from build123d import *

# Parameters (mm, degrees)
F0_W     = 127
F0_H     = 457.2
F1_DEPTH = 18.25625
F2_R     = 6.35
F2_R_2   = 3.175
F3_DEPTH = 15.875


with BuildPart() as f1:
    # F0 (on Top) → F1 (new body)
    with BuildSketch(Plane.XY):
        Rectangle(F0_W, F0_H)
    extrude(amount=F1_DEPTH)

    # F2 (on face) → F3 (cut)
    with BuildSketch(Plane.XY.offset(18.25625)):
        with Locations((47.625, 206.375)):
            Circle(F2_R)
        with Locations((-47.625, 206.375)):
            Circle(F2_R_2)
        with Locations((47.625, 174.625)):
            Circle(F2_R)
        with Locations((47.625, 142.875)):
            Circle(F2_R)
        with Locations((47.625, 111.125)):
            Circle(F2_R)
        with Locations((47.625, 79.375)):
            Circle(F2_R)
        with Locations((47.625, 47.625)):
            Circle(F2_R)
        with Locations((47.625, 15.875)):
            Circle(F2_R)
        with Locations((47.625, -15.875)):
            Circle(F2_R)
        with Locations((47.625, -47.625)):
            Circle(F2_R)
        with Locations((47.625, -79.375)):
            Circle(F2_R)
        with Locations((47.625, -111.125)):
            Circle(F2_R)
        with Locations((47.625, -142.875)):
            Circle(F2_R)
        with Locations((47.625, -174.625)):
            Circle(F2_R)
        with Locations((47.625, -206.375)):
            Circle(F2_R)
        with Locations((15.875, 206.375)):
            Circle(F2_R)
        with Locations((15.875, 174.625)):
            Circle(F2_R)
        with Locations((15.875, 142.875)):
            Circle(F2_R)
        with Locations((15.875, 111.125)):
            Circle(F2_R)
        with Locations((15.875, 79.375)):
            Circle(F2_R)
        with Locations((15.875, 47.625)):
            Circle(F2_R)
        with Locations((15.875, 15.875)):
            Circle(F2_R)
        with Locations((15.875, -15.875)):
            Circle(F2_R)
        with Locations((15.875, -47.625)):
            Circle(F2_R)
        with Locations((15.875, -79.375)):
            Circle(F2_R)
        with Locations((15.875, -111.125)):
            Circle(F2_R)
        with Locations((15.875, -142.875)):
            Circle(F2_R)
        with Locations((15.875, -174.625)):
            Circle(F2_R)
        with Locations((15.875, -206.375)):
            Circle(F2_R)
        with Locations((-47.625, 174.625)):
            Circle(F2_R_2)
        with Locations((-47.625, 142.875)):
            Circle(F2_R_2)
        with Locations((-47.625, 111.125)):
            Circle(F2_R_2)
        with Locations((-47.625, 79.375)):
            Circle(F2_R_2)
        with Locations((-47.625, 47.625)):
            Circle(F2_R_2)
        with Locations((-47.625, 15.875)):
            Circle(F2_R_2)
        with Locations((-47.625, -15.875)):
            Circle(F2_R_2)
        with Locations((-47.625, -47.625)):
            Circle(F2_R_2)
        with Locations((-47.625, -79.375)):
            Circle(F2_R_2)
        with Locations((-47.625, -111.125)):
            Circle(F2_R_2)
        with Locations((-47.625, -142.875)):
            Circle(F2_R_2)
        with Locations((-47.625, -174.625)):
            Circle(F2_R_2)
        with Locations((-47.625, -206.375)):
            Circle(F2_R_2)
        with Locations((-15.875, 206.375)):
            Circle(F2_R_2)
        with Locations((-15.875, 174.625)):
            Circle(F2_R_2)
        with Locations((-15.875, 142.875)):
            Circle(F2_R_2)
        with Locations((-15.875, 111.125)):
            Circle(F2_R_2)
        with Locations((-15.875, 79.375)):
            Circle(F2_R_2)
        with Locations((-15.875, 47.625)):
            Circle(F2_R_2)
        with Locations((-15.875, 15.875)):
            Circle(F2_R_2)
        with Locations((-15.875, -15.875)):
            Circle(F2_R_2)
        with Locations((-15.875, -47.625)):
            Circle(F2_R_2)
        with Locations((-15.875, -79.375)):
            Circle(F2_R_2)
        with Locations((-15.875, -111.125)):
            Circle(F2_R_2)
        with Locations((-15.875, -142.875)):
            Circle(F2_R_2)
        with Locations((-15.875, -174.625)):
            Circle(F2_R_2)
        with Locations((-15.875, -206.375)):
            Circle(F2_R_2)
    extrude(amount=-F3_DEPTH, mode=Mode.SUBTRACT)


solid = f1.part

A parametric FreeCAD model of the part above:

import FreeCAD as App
import Part
import Sketcher
Q = App.Units.Quantity

doc = App.newDocument("Part")
body = doc.addObject("PartDesign::Body", "Body")

# Sketch on XY plane
sketch1 = body.newObject("Sketcher::SketchObject", "Sketch")
sketch1.AttachmentSupport = (doc.getObject("XY_Plane"), [""])
sketch1.MapMode = "FlatFace"
sketch1.addGeometry([
    Part.LineSegment(App.Vector(-63.5, 228.6, 0), App.Vector(-63.5, -228.6, 0)),
    Part.LineSegment(App.Vector(-63.5, -228.6, 0), App.Vector(63.5, -228.6, 0)),
    Part.LineSegment(App.Vector(63.5, -228.6, 0), App.Vector(63.5, 228.6, 0)),
    Part.LineSegment(App.Vector(63.5, 228.6, 0), App.Vector(-63.5, 228.6, 0)),
], False)
sketch1.addConstraint([
    Sketcher.Constraint("Coincident", 0, 2, 1, 1),
    Sketcher.Constraint("Coincident", 1, 2, 2, 1),
    Sketcher.Constraint("Coincident", 2, 2, 3, 1),
    Sketcher.Constraint("Coincident", 3, 2, 0, 1),
    Sketcher.Constraint("Vertical", 0),
    Sketcher.Constraint("Horizontal", 1),
    Sketcher.Constraint("Vertical", 2),
    Sketcher.Constraint("Horizontal", 3),
    Sketcher.Constraint("Symmetric", 0, 2, 2, 2, -1, 1),
    Sketcher.Constraint("DistanceX", 1, 1, 1, 2, Q("5 in")),
    Sketcher.Constraint("DistanceY", 0, 2, 0, 1, Q("18 in")),
])
pad1 = body.newObject("PartDesign::Pad", "Pad")
pad1.Profile = sketch1
pad1.Length = Q("0.71875 in")

# Sketch on XY plane
sketch2 = body.newObject("Sketcher::SketchObject", "Sketch001")
sketch2.AttachmentSupport = (doc.getObject("XY_Plane"), [""])
sketch2.MapMode = "FlatFace"
sketch2.AttachmentOffset = App.Placement(App.Vector(0, 0, 0.71875 * 25.4), App.Rotation())
sketch2.addGeometry([
    Part.Circle(App.Vector(47.625, 206.375, 0), App.Vector(0, 0, 1), 6.35),  # 0
    Part.Circle(App.Vector(-47.625, 206.375, 0), App.Vector(0, 0, 1), 3.175),  # 1
    Part.Circle(App.Vector(47.625, 174.625, 0), App.Vector(0, 0, 1), 6.35),  # 2
    Part.Circle(App.Vector(47.625, 142.875, 0), App.Vector(0, 0, 1), 6.35),  # 3
    Part.Circle(App.Vector(47.625, 111.125, 0), App.Vector(0, 0, 1), 6.35),  # 4
    Part.Circle(App.Vector(47.625, 79.375, 0), App.Vector(0, 0, 1), 6.35),  # 5
    Part.Circle(App.Vector(47.625, 47.625, 0), App.Vector(0, 0, 1), 6.35),  # 6
    Part.Circle(App.Vector(47.625, 15.875, 0), App.Vector(0, 0, 1), 6.35),  # 7
    Part.Circle(App.Vector(47.625, -15.875, 0), App.Vector(0, 0, 1), 6.35),  # 8
    Part.Circle(App.Vector(47.625, -47.625, 0), App.Vector(0, 0, 1), 6.35),  # 9
    Part.Circle(App.Vector(47.625, -79.375, 0), App.Vector(0, 0, 1), 6.35),  # 10
    Part.Circle(App.Vector(47.625, -111.125, 0), App.Vector(0, 0, 1), 6.35),  # 11
    Part.Circle(App.Vector(47.625, -142.875, 0), App.Vector(0, 0, 1), 6.35),  # 12
    Part.Circle(App.Vector(47.625, -174.625, 0), App.Vector(0, 0, 1), 6.35),  # 13
    Part.Circle(App.Vector(47.625, -206.375, 0), App.Vector(0, 0, 1), 6.35),  # 14
    Part.Circle(App.Vector(15.875, 206.375, 0), App.Vector(0, 0, 1), 6.35),  # 15
    Part.Circle(App.Vector(15.875, 174.625, 0), App.Vector(0, 0, 1), 6.35),  # 16
    Part.Circle(App.Vector(15.875, 142.875, 0), App.Vector(0, 0, 1), 6.35),  # 17
    Part.Circle(App.Vector(15.875, 111.125, 0), App.Vector(0, 0, 1), 6.35),  # 18
    Part.Circle(App.Vector(15.875, 79.375, 0), App.Vector(0, 0, 1), 6.35),  # 19
    Part.Circle(App.Vector(15.875, 47.625, 0), App.Vector(0, 0, 1), 6.35),  # 20
    Part.Circle(App.Vector(15.875, 15.875, 0), App.Vector(0, 0, 1), 6.35),  # 21
    Part.Circle(App.Vector(15.875, -15.875, 0), App.Vector(0, 0, 1), 6.35),  # 22
    Part.Circle(App.Vector(15.875, -47.625, 0), App.Vector(0, 0, 1), 6.35),  # 23
    Part.Circle(App.Vector(15.875, -79.375, 0), App.Vector(0, 0, 1), 6.35),  # 24
    Part.Circle(App.Vector(15.875, -111.125, 0), App.Vector(0, 0, 1), 6.35),  # 25
    Part.Circle(App.Vector(15.875, -142.875, 0), App.Vector(0, 0, 1), 6.35),  # 26
    Part.Circle(App.Vector(15.875, -174.625, 0), App.Vector(0, 0, 1), 6.35),  # 27
    Part.Circle(App.Vector(15.875, -206.375, 0), App.Vector(0, 0, 1), 6.35),  # 28
    Part.Circle(App.Vector(-47.625, 174.625, 0), App.Vector(0, 0, 1), 3.175),  # 29
    Part.Circle(App.Vector(-47.625, 142.875, 0), App.Vector(0, 0, 1), 3.175),  # 30
    Part.Circle(App.Vector(-47.625, 111.125, 0), App.Vector(0, 0, 1), 3.175),  # 31
    Part.Circle(App.Vector(-47.625, 79.375, 0), App.Vector(0, 0, 1), 3.175),  # 32
    Part.Circle(App.Vector(-47.625, 47.625, 0), App.Vector(0, 0, 1), 3.175),  # 33
    Part.Circle(App.Vector(-47.625, 15.875, 0), App.Vector(0, 0, 1), 3.175),  # 34
    Part.Circle(App.Vector(-47.625, -15.875, 0), App.Vector(0, 0, 1), 3.175),  # 35
    Part.Circle(App.Vector(-47.625, -47.625, 0), App.Vector(0, 0, 1), 3.175),  # 36
    Part.Circle(App.Vector(-47.625, -79.375, 0), App.Vector(0, 0, 1), 3.175),  # 37
    Part.Circle(App.Vector(-47.625, -111.125, 0), App.Vector(0, 0, 1), 3.175),  # 38
    Part.Circle(App.Vector(-47.625, -142.875, 0), App.Vector(0, 0, 1), 3.175),  # 39
    Part.Circle(App.Vector(-47.625, -174.625, 0), App.Vector(0, 0, 1), 3.175),  # 40
    Part.Circle(App.Vector(-47.625, -206.375, 0), App.Vector(0, 0, 1), 3.175),  # 41
    Part.Circle(App.Vector(-15.875, 206.375, 0), App.Vector(0, 0, 1), 3.175),  # 42
    Part.Circle(App.Vector(-15.875, 174.625, 0), App.Vector(0, 0, 1), 3.175),  # 43
    Part.Circle(App.Vector(-15.875, 142.875, 0), App.Vector(0, 0, 1), 3.175),  # 44
    Part.Circle(App.Vector(-15.875, 111.125, 0), App.Vector(0, 0, 1), 3.175),  # 45
    Part.Circle(App.Vector(-15.875, 79.375, 0), App.Vector(0, 0, 1), 3.175),  # 46
    Part.Circle(App.Vector(-15.875, 47.625, 0), App.Vector(0, 0, 1), 3.175),  # 47
    Part.Circle(App.Vector(-15.875, 15.875, 0), App.Vector(0, 0, 1), 3.175),  # 48
    Part.Circle(App.Vector(-15.875, -15.875, 0), App.Vector(0, 0, 1), 3.175),  # 49
    Part.Circle(App.Vector(-15.875, -47.625, 0), App.Vector(0, 0, 1), 3.175),  # 50
    Part.Circle(App.Vector(-15.875, -79.375, 0), App.Vector(0, 0, 1), 3.175),  # 51
    Part.Circle(App.Vector(-15.875, -111.125, 0), App.Vector(0, 0, 1), 3.175),  # 52
    Part.Circle(App.Vector(-15.875, -142.875, 0), App.Vector(0, 0, 1), 3.175),  # 53
    Part.Circle(App.Vector(-15.875, -174.625, 0), App.Vector(0, 0, 1), 3.175),  # 54
    Part.Circle(App.Vector(-15.875, -206.375, 0), App.Vector(0, 0, 1), 3.175),  # 55
], False)
sketch2.addConstraint([
    Sketcher.Constraint("Equal", 0, 2),
    Sketcher.Constraint("Equal", 2, 3),
    Sketcher.Constraint("Equal", 3, 4),
    Sketcher.Constraint("Equal", 4, 5),
    Sketcher.Constraint("Equal", 5, 6),
    Sketcher.Constraint("Equal", 6, 7),
    Sketcher.Constraint("Equal", 7, 8),
    Sketcher.Constraint("Equal", 8, 9),
    Sketcher.Constraint("Equal", 9, 10),
    Sketcher.Constraint("Equal", 10, 11),
    Sketcher.Constraint("Equal", 11, 12),
    Sketcher.Constraint("Equal", 12, 13),
    Sketcher.Constraint("Equal", 13, 14),
    Sketcher.Constraint("Equal", 14, 15),
    Sketcher.Constraint("Equal", 15, 16),
    Sketcher.Constraint("Equal", 16, 17),
    Sketcher.Constraint("Equal", 17, 18),
    Sketcher.Constraint("Equal", 18, 19),
    Sketcher.Constraint("Equal", 19, 20),
    Sketcher.Constraint("Equal", 20, 21),
    Sketcher.Constraint("Equal", 21, 22),
    Sketcher.Constraint("Equal", 22, 23),
    Sketcher.Constraint("Equal", 23, 24),
    Sketcher.Constraint("Equal", 24, 25),
    Sketcher.Constraint("Equal", 25, 26),
    Sketcher.Constraint("Equal", 26, 27),
    Sketcher.Constraint("Equal", 27, 28),
    Sketcher.Constraint("Equal", 1, 29),
    Sketcher.Constraint("Equal", 29, 30),
    Sketcher.Constraint("Equal", 30, 31),
    Sketcher.Constraint("Equal", 31, 32),
    Sketcher.Constraint("Equal", 32, 33),
    Sketcher.Constraint("Equal", 33, 34),
    Sketcher.Constraint("Equal", 34, 35),
    Sketcher.Constraint("Equal", 35, 36),
    Sketcher.Constraint("Equal", 36, 37),
    Sketcher.Constraint("Equal", 37, 38),
    Sketcher.Constraint("Equal", 38, 39),
    Sketcher.Constraint("Equal", 39, 40),
    Sketcher.Constraint("Equal", 40, 41),
    Sketcher.Constraint("Equal", 41, 42),
    Sketcher.Constraint("Equal", 42, 43),
    Sketcher.Constraint("Equal", 43, 44),
    Sketcher.Constraint("Equal", 44, 45),
    Sketcher.Constraint("Equal", 45, 46),
    Sketcher.Constraint("Equal", 46, 47),
    Sketcher.Constraint("Equal", 47, 48),
    Sketcher.Constraint("Equal", 48, 49),
    Sketcher.Constraint("Equal", 49, 50),
    Sketcher.Constraint("Equal", 50, 51),
    Sketcher.Constraint("Equal", 51, 52),
    Sketcher.Constraint("Equal", 52, 53),
    Sketcher.Constraint("Equal", 53, 54),
    Sketcher.Constraint("Equal", 54, 55),
    Sketcher.Constraint("Symmetric", 1, 3, 14, 3, -1, 1),
    Sketcher.Constraint("Symmetric", 13, 3, 29, 3, -1, 1),
    Sketcher.Constraint("Symmetric", 12, 3, 30, 3, -1, 1),
    Sketcher.Constraint("Symmetric", 11, 3, 31, 3, -1, 1),
    Sketcher.Constraint("Symmetric", 10, 3, 32, 3, -1, 1),
    Sketcher.Constraint("Symmetric", 9, 3, 33, 3, -1, 1),
    Sketcher.Constraint("Symmetric", 8, 3, 34, 3, -1, 1),
    Sketcher.Constraint("Symmetric", 7, 3, 35, 3, -1, 1),
    Sketcher.Constraint("Symmetric", 6, 3, 36, 3, -1, 1),
    Sketcher.Constraint("Symmetric", 5, 3, 37, 3, -1, 1),
    Sketcher.Constraint("Symmetric", 4, 3, 38, 3, -1, 1),
    Sketcher.Constraint("Symmetric", 3, 3, 39, 3, -1, 1),
    Sketcher.Constraint("Symmetric", 2, 3, 40, 3, -1, 1),
    Sketcher.Constraint("Symmetric", 0, 3, 41, 3, -1, 1),
    Sketcher.Constraint("Symmetric", 28, 3, 42, 3, -1, 1),
    Sketcher.Constraint("Symmetric", 27, 3, 43, 3, -1, 1),
    Sketcher.Constraint("Symmetric", 26, 3, 44, 3, -1, 1),
    Sketcher.Constraint("Symmetric", 25, 3, 45, 3, -1, 1),
    Sketcher.Constraint("Symmetric", 24, 3, 46, 3, -1, 1),
    Sketcher.Constraint("Symmetric", 23, 3, 47, 3, -1, 1),
    Sketcher.Constraint("Symmetric", 22, 3, 48, 3, -1, 1),
    Sketcher.Constraint("Symmetric", 21, 3, 49, 3, -1, 1),
    Sketcher.Constraint("Symmetric", 20, 3, 50, 3, -1, 1),
    Sketcher.Constraint("Symmetric", 19, 3, 51, 3, -1, 1),
    Sketcher.Constraint("Symmetric", 18, 3, 52, 3, -1, 1),
    Sketcher.Constraint("Symmetric", 17, 3, 53, 3, -1, 1),
    Sketcher.Constraint("Symmetric", 16, 3, 54, 3, -1, 1),
    Sketcher.Constraint("Symmetric", 15, 3, 55, 3, -1, 1),
    Sketcher.Constraint("Symmetric", 0, 3, 1, 3, -2),
    Sketcher.Constraint("Symmetric", 2, 3, 29, 3, -2),
    Sketcher.Constraint("Symmetric", 3, 3, 30, 3, -2),
    Sketcher.Constraint("Symmetric", 4, 3, 31, 3, -2),
    Sketcher.Constraint("Symmetric", 5, 3, 32, 3, -2),
    Sketcher.Constraint("Symmetric", 6, 3, 33, 3, -2),
    Sketcher.Constraint("Symmetric", 7, 3, 34, 3, -2),
    Sketcher.Constraint("Symmetric", 15, 3, 42, 3, -2),
    Sketcher.Constraint("Symmetric", 16, 3, 43, 3, -2),
    Sketcher.Constraint("Symmetric", 17, 3, 44, 3, -2),
    Sketcher.Constraint("Symmetric", 18, 3, 45, 3, -2),
    Sketcher.Constraint("Symmetric", 19, 3, 46, 3, -2),
    Sketcher.Constraint("Symmetric", 20, 3, 47, 3, -2),
    Sketcher.Constraint("Symmetric", 21, 3, 48, 3, -2),
    Sketcher.Constraint("Horizontal", 1, 3, 15, 3),
    Sketcher.Constraint("Horizontal", 2, 3, 16, 3),
    Sketcher.Constraint("Horizontal", 3, 3, 17, 3),
    Sketcher.Constraint("Horizontal", 4, 3, 18, 3),
    Sketcher.Constraint("Horizontal", 5, 3, 19, 3),
    Sketcher.Constraint("Horizontal", 6, 3, 20, 3),
    Sketcher.Constraint("Horizontal", 7, 3, 21, 3),
    Sketcher.Constraint("Vertical", 0, 3, 2, 3),
    Sketcher.Constraint("Vertical", 2, 3, 3, 3),
    Sketcher.Constraint("Vertical", 3, 3, 4, 3),
    Sketcher.Constraint("Vertical", 4, 3, 5, 3),
    Sketcher.Constraint("Vertical", 5, 3, 6, 3),
    Sketcher.Constraint("Vertical", 6, 3, 7, 3),
    Sketcher.Constraint("Vertical", 15, 3, 16, 3),
    Sketcher.Constraint("Vertical", 16, 3, 17, 3),
    Sketcher.Constraint("Vertical", 17, 3, 18, 3),
    Sketcher.Constraint("Vertical", 18, 3, 19, 3),
    Sketcher.Constraint("Vertical", 19, 3, 20, 3),
    Sketcher.Constraint("Vertical", 20, 3, 21, 3),
    Sketcher.Constraint("Diameter", 0, Q("0.5 in")),
    Sketcher.Constraint("Diameter", 1, Q("0.25 in")),
    Sketcher.Constraint("DistanceY", 5, 3, 0, 3, Q("5 in")),
    Sketcher.Constraint("DistanceY", 6, 3, 2, 3, Q("5 in")),
    Sketcher.Constraint("DistanceY", 7, 3, 3, 3, Q("5 in")),
    Sketcher.Constraint("DistanceY", 8, 3, 4, 3, Q("5 in")),
    Sketcher.Constraint("DistanceY", 9, 3, 5, 3, Q("5 in")),
    Sketcher.Constraint("DistanceY", 3, 3, 0, 3, Q("2.5 in")),
    Sketcher.Constraint("DistanceX", 1, 3, 15, 3, Q("2.5 in")),
    Sketcher.Constraint("DistanceX", 1, 3, 0, 3, Q("3.75 in")),
    Sketcher.Constraint("DistanceY", 2, 3, 0, 3, Q("1.25 in")),
])
pocket1 = body.newObject("PartDesign::Pocket", "Pocket")
pocket1.Profile = sketch2
pocket1.Length = Q("0.625 in")

doc.recompute()
